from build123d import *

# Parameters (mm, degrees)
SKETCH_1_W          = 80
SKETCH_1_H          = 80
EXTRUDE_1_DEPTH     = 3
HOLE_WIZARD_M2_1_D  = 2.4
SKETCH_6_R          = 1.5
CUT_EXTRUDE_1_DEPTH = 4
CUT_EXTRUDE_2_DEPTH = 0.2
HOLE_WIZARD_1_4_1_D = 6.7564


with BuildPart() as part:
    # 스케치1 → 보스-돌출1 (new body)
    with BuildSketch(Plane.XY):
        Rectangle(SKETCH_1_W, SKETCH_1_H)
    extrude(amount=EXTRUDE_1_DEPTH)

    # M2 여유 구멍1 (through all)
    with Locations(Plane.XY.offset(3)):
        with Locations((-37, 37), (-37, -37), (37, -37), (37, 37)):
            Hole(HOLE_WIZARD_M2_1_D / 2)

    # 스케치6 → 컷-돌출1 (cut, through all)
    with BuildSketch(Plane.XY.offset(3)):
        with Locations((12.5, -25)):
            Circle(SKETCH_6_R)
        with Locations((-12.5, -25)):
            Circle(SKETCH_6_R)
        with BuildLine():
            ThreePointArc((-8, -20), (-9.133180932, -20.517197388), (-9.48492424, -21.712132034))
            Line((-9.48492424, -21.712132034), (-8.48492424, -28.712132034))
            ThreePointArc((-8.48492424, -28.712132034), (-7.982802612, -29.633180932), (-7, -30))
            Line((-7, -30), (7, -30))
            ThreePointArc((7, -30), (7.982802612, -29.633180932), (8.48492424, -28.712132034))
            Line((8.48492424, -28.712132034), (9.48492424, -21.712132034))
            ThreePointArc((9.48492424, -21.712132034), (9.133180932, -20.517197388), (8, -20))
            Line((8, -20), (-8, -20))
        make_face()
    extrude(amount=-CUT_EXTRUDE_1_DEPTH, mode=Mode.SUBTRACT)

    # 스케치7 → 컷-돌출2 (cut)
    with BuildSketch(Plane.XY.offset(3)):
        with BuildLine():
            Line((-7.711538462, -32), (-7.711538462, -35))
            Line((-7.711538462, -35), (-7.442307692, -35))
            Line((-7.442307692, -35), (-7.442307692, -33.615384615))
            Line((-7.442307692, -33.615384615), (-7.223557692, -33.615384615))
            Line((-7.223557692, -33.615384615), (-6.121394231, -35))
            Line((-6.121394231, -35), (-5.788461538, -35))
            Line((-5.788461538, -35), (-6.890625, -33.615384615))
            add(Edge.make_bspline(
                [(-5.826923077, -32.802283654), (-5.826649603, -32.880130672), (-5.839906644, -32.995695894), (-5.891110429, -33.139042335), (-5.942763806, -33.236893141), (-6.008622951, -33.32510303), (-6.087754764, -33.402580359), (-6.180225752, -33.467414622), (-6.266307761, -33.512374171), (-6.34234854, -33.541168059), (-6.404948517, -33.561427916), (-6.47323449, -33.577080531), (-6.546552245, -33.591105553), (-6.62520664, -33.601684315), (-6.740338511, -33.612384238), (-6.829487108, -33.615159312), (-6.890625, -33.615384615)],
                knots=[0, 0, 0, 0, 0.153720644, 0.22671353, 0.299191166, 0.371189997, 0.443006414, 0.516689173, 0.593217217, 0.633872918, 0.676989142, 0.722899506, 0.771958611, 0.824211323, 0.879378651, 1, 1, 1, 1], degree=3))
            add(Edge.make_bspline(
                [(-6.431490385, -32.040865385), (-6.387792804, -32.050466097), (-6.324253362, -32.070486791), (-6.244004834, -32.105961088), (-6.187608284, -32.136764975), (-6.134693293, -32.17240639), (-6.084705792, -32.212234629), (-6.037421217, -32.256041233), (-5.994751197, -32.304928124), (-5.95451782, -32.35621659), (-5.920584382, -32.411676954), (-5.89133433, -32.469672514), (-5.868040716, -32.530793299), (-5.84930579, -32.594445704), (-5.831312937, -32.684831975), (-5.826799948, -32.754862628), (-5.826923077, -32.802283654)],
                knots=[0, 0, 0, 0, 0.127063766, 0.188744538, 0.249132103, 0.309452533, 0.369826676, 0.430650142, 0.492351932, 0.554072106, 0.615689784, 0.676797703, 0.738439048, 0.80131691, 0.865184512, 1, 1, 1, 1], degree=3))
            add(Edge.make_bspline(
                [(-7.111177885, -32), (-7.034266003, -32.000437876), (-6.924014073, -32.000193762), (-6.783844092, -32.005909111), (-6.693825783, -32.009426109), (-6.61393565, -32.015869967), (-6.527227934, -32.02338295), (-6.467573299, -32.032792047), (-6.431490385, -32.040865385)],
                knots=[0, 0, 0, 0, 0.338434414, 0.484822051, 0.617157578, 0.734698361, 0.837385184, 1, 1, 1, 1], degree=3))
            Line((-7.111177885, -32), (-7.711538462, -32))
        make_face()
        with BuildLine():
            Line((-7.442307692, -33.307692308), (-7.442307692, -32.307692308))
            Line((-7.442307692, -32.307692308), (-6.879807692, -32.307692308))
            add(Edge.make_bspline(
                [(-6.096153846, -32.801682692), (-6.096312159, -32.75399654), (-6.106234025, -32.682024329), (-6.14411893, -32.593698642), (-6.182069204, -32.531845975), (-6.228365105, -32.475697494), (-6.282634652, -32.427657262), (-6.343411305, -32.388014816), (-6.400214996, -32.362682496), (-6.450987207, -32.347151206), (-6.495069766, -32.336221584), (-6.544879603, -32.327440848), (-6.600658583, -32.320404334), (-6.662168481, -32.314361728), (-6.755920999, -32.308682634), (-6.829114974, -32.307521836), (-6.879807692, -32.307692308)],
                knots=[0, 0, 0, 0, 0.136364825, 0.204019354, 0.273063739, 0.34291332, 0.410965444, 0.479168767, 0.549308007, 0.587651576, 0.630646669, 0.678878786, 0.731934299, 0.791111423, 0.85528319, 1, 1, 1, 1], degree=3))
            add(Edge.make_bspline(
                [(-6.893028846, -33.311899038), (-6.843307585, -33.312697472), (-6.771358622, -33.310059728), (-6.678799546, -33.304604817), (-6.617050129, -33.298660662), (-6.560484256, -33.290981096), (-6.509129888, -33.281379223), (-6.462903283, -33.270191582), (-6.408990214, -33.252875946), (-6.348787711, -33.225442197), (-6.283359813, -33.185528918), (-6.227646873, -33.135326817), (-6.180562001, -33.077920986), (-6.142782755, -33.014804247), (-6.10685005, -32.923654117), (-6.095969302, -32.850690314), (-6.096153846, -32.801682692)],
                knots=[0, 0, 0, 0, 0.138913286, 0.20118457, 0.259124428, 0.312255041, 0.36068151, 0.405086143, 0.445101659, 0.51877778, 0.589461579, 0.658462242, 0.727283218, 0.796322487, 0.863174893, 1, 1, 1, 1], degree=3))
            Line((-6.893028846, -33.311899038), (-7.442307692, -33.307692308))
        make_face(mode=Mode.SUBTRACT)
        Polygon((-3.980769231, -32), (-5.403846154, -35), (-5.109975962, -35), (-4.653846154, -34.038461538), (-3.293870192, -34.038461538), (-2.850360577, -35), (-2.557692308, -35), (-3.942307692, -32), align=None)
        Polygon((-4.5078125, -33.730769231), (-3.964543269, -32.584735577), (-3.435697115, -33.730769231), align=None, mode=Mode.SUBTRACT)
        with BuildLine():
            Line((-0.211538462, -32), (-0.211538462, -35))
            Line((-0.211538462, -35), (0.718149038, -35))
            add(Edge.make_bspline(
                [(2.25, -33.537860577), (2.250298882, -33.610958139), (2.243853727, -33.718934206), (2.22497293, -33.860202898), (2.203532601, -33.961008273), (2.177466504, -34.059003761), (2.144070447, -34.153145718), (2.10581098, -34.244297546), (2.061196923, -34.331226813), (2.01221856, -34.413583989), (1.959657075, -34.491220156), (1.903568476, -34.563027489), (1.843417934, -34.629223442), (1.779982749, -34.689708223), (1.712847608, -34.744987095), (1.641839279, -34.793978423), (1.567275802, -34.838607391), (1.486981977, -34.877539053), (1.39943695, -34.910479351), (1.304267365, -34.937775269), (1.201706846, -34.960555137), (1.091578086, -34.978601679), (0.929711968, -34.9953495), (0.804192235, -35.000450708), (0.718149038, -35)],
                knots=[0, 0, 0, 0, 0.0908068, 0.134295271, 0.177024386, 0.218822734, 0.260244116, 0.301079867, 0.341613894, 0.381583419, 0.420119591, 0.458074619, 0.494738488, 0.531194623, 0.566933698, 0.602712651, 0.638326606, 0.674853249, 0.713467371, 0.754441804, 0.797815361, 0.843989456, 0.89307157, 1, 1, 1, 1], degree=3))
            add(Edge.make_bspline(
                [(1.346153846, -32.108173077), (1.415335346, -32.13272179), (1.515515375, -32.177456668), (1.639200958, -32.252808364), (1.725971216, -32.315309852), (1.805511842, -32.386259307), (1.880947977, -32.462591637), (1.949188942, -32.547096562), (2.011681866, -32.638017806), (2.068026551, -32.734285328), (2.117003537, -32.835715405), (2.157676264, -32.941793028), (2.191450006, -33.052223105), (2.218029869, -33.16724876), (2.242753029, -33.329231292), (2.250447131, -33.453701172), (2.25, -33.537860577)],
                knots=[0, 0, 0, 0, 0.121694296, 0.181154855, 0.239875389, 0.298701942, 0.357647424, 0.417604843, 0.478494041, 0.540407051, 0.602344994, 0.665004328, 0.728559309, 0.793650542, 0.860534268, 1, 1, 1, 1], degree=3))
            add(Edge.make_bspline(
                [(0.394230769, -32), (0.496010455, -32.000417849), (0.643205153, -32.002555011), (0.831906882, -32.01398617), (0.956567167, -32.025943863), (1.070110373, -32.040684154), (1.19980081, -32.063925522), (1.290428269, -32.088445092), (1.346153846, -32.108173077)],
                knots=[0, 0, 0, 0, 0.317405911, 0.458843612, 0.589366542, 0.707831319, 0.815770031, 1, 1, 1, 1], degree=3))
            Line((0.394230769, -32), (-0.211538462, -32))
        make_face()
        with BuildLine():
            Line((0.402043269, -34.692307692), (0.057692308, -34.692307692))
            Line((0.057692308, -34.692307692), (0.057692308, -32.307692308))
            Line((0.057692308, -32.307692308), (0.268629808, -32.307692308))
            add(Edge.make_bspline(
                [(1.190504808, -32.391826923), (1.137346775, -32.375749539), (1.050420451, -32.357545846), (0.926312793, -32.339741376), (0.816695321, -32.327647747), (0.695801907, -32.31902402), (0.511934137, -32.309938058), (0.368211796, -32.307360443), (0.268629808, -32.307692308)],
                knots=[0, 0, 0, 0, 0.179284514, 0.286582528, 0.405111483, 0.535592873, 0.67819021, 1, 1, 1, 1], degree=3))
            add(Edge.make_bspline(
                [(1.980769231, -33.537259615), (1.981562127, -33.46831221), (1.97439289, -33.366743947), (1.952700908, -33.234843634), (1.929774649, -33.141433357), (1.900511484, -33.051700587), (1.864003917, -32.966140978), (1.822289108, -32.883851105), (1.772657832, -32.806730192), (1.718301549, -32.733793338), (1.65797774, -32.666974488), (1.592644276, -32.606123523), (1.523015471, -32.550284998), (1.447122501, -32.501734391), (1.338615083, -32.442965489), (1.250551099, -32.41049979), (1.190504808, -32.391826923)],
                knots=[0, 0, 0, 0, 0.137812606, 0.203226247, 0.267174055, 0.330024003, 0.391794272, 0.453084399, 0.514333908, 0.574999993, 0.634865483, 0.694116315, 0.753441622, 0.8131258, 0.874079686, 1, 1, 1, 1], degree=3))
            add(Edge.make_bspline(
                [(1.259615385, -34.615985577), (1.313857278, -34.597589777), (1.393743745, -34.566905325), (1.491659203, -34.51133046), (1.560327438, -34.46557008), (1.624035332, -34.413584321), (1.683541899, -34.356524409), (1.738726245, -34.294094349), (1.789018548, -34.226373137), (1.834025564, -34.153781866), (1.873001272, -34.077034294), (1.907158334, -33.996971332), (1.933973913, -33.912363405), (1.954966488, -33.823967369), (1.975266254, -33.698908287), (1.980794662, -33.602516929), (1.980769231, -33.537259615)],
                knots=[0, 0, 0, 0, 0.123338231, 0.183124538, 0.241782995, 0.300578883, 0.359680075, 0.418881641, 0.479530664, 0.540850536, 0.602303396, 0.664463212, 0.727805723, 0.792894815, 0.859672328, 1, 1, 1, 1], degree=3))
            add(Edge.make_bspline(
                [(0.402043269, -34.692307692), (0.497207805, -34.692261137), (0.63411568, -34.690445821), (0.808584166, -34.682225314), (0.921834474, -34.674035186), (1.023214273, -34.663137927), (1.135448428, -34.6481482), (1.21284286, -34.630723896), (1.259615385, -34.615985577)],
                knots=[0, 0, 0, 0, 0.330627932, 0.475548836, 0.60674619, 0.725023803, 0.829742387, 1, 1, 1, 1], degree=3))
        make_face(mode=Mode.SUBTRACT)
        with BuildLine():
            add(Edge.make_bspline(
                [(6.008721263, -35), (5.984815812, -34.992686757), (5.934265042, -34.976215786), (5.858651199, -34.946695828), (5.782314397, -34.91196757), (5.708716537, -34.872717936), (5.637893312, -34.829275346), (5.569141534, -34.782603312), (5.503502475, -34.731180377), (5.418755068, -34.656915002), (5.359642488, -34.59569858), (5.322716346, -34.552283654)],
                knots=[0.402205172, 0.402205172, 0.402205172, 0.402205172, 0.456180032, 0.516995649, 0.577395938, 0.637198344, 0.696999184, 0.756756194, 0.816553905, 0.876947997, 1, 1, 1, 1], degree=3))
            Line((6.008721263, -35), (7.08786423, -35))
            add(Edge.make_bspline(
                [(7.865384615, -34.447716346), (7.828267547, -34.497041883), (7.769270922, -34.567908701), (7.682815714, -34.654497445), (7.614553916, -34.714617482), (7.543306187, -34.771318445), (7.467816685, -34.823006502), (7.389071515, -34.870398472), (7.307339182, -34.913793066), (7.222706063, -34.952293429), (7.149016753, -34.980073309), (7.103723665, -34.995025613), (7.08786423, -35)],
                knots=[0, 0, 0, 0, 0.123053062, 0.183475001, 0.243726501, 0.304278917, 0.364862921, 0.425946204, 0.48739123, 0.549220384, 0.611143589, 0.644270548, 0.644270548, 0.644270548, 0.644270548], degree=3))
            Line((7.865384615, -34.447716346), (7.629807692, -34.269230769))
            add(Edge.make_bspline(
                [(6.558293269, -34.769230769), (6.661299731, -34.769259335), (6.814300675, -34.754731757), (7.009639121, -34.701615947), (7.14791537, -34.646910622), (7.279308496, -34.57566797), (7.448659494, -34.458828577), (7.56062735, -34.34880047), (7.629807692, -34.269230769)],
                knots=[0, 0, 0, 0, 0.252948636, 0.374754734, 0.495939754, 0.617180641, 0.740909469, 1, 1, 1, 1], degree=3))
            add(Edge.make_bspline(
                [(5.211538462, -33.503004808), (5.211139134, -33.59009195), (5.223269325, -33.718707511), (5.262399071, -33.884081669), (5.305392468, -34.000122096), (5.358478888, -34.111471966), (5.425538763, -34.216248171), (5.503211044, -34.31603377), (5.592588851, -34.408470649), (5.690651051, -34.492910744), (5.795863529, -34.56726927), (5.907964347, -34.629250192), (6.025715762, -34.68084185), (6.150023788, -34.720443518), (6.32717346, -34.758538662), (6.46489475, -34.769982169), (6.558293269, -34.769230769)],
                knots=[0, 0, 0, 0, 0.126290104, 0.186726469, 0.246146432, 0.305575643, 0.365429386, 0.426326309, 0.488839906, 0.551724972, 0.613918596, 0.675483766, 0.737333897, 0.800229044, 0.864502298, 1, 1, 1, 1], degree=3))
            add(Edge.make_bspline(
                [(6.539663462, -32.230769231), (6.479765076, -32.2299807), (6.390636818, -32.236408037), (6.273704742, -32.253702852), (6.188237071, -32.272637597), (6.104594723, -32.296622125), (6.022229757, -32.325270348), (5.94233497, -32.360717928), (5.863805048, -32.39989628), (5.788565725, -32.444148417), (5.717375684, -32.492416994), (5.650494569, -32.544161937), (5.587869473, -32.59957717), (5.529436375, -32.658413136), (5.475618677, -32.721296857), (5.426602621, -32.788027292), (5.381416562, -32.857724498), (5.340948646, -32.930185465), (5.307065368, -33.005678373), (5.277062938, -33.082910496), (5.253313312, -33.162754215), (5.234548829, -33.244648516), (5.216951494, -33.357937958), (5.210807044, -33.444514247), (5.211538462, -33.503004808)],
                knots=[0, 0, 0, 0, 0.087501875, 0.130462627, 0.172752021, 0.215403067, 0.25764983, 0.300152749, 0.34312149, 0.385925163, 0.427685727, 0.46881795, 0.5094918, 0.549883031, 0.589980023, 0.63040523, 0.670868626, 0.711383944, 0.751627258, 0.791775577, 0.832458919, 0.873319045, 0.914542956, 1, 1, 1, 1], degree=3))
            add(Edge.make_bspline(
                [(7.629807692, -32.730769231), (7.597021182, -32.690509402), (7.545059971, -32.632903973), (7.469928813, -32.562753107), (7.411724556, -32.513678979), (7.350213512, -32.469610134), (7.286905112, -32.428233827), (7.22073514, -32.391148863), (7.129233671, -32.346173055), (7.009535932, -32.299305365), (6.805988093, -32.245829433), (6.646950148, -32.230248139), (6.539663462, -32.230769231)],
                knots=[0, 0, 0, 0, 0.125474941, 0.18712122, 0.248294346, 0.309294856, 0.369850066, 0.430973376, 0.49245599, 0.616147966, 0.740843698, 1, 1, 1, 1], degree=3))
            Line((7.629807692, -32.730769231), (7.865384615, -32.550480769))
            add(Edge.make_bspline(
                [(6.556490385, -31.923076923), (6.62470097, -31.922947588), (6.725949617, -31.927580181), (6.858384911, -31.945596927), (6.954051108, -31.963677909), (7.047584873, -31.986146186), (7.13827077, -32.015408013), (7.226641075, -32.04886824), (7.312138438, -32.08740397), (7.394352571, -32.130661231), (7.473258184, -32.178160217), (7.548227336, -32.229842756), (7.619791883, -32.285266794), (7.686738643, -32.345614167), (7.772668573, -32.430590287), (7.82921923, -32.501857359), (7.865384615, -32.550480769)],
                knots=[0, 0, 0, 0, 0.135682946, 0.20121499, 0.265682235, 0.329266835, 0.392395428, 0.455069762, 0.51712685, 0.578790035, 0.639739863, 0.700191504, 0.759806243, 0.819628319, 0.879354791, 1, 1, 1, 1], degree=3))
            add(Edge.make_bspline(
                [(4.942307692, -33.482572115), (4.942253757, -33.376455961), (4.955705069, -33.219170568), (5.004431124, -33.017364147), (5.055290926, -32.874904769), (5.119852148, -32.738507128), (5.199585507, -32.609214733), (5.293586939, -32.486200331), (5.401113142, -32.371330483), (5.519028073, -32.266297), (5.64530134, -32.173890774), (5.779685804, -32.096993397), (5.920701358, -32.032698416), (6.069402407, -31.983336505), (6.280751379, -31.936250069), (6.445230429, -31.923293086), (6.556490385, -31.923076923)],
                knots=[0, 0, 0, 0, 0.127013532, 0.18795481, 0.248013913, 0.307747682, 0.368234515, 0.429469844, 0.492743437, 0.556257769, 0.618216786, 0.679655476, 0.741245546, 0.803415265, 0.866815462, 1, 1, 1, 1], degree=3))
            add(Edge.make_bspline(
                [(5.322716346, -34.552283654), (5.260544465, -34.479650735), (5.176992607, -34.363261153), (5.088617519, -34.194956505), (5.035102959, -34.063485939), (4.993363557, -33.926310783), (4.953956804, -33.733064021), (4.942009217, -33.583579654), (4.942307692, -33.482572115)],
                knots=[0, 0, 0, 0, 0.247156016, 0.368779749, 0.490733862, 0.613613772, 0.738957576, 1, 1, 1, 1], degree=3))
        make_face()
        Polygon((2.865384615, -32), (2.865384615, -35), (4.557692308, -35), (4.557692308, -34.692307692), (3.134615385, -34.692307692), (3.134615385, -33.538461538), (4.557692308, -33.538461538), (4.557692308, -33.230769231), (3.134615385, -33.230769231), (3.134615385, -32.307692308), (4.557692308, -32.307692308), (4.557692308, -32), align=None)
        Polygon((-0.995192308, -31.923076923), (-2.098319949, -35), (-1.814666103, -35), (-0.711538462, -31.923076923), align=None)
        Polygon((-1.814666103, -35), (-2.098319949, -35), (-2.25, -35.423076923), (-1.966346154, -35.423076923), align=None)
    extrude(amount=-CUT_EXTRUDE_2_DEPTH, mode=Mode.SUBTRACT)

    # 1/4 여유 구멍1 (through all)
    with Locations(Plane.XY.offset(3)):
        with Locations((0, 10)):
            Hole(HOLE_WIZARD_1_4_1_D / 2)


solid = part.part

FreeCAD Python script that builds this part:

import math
import FreeCAD as App
import Part
import Sketcher

V = App.Vector
Q = App.Units.Quantity

doc = App.newDocument("Part")
body = doc.addObject("PartDesign::Body", "Body")

sketch1 = body.newObject("Sketcher::SketchObject", "Sketch")
sketch1.AttachmentSupport = (doc.getObject("XY_Plane"), [""])
sketch1.MapMode = "FlatFace"
sketch1.addGeometry(Part.LineSegment(V(-40, 40, 0), V(-40, -40, 0)), False)
sketch1.addGeometry(Part.LineSegment(V(-40, -40, 0), V(40, -40, 0)), False)
sketch1.addGeometry(Part.LineSegment(V(40, -40, 0), V(40, 40, 0)), False)
sketch1.addGeometry(Part.LineSegment(V(40, 40, 0), V(-40, 40, 0)), False)
sketch1.addConstraint(Sketcher.Constraint("Coincident", 0, 2, 1, 1))
sketch1.addConstraint(Sketcher.Constraint("Coincident", 1, 2, 2, 1))
sketch1.addConstraint(Sketcher.Constraint("Coincident", 2, 2, 3, 1))
sketch1.addConstraint(Sketcher.Constraint("Coincident", 3, 2, 0, 1))
sketch1.addConstraint(Sketcher.Constraint("Vertical", 0))
sketch1.addConstraint(Sketcher.Constraint("Horizontal", 1))
sketch1.addConstraint(Sketcher.Constraint("Vertical", 2))
sketch1.addConstraint(Sketcher.Constraint("Horizontal", 3))
sketch1.addConstraint(Sketcher.Constraint("Symmetric", 0, 2, 2, 2, -1, 1))
sketch1.addConstraint(Sketcher.Constraint("Equal", 3, 0))
sketch1.addConstraint(Sketcher.Constraint("DistanceX", 1, 1, 1, 2, Q("80 mm")))
pad1 = body.newObject("PartDesign::Pad", "Pad")
pad1.Profile = sketch1
pad1.Length = 3

sketch2 = body.newObject("Sketcher::SketchObject", "Sketch001")
sketch2.AttachmentSupport = (doc.getObject("XY_Plane"), [""])
sketch2.MapMode = "FlatFace"
sketch2.AttachmentOffset = App.Placement(V(0, 0, 3), App.Rotation())
sketch2.addGeometry(Part.Circle(V(-37, 37, 0), V(0, 0, 1), 1.2), False)
sketch2.addGeometry(Part.Circle(V(-37, -37, 0), V(0, 0, 1), 1.2), False)
sketch2.addGeometry(Part.Circle(V(37, -37, 0), V(0, 0, 1), 1.2), False)
sketch2.addGeometry(Part.Circle(V(37, 37, 0), V(0, 0, 1), 1.2), False)
sketch2.addConstraint(Sketcher.Constraint("Equal", 0, 1))
sketch2.addConstraint(Sketcher.Constraint("Equal", 1, 2))
sketch2.addConstraint(Sketcher.Constraint("Equal", 2, 3))
sketch2.addConstraint(Sketcher.Constraint("Symmetric", 0, 3, 2, 3, -1, 1))
sketch2.addConstraint(Sketcher.Constraint("Symmetric", 1, 3, 3, 3, -1, 1))
sketch2.addConstraint(Sketcher.Constraint("Symmetric", 1, 3, 2, 3, -2))
sketch2.addConstraint(Sketcher.Constraint("Diameter", 0, Q("2.4 mm")))
sketch2.addConstraint(Sketcher.Constraint("DistanceX", 0, 3, -1, 1, Q("37 mm")))
sketch2.addConstraint(Sketcher.Constraint("DistanceY", -1, 1, 0, 3, Q("37 mm")))
doc.recompute()
hole = body.newObject("PartDesign::Hole", "Hole")
hole.Profile = sketch2
hole.ThreadType = "None"
hole.Diameter = 2.4
hole.DepthType = "ThroughAll"

sketch3 = body.newObject("Sketcher::SketchObject", "Sketch002")
sketch3.AttachmentSupport = (doc.getObject("XY_Plane"), [""])
sketch3.MapMode = "FlatFace"
sketch3.AttachmentOffset = App.Placement(V(0, 0, 3), App.Rotation())
sketch3.addGeometry(Part.Circle(V(12.5, -25, 0), V(0, 0, 1), 1.5), False)
sketch3.addGeometry(Part.Circle(V(-12.5, -25, 0), V(0, 0, 1), 1.5), False)
sketch3.addGeometry(Part.ArcOfCircle(Part.Circle(V(-8, -21.5, 0), V(0, 0, 1), 1.5), math.radians(90), math.radians(188)), False)
sketch3.addGeometry(Part.LineSegment(V(-9.5, -21.7, 0), V(-8.5, -28.7, 0)), False)
sketch3.addGeometry(Part.ArcOfCircle(Part.Circle(V(-7, -28.5, 0), V(0, 0, 1), 1.5), math.radians(-172), math.radians(-90)), False)
sketch3.addGeometry(Part.LineSegment(V(-7, -30, 0), V(7, -30, 0)), False)
sketch3.addGeometry(Part.ArcOfCircle(Part.Circle(V(7, -28.5, 0), V(0, 0, 1), 1.5), math.radians(-90), math.radians(-8)), False)
sketch3.addGeometry(Part.LineSegment(V(8.5, -28.7, 0), V(9.5, -21.7, 0)), False)
sketch3.addGeometry(Part.ArcOfCircle(Part.Circle(V(8, -21.5, 0), V(0, 0, 1), 1.5), math.radians(-8), math.radians(90)), False)
sketch3.addGeometry(Part.LineSegment(V(8, -20, 0), V(-8, -20, 0)), False)
sketch3.addConstraint(Sketcher.Constraint("Tangent", 2, 2, 3, 1))
sketch3.addConstraint(Sketcher.Constraint("Tangent", 3, 2, 4, 1))
sketch3.addConstraint(Sketcher.Constraint("Tangent", 4, 2, 5, 1))
sketch3.addConstraint(Sketcher.Constraint("Tangent", 5, 2, 6, 1))
sketch3.addConstraint(Sketcher.Constraint("Tangent", 6, 2, 7, 1))
sketch3.addConstraint(Sketcher.Constraint("Tangent", 7, 2, 8, 1))
sketch3.addConstraint(Sketcher.Constraint("Tangent", 8, 2, 9, 1))
sketch3.addConstraint(Sketcher.Constraint("Tangent", 9, 2, 2, 1))
sketch3.addConstraint(Sketcher.Constraint("Horizontal", 5))
sketch3.addConstraint(Sketcher.Constraint("Horizontal", 9))
sketch3.addConstraint(Sketcher.Constraint("Equal", 0, 1))
sketch3.addConstraint(Sketcher.Constraint("Equal", 1, 2))
sketch3.addConstraint(Sketcher.Constraint("Equal", 2, 4))
sketch3.addConstraint(Sketcher.Constraint("Equal", 4, 6))
sketch3.addConstraint(Sketcher.Constraint("Equal", 6, 8))
sketch3.addConstraint(Sketcher.Constraint("Symmetric", 0, 3, 1, 3, -2))
sketch3.addConstraint(Sketcher.Constraint("Symmetric", 3, 2, 6, 2, -2))
sketch3.addConstraint(Sketcher.Constraint("Diameter", 0, Q("3 mm")))
sketch3.addConstraint(Sketcher.Constraint("DistanceX", 5, 1, 5, 2, Q("14 mm")))
sketch3.addConstraint(Sketcher.Constraint("DistanceX", 9, 2, 9, 1, Q("16 mm")))
sketch3.addConstraint(Sketcher.Constraint("DistanceY", 0, 3, -1, 1, Q("25 mm")))
sketch3.addConstraint(Sketcher.Constraint("DistanceY", 4, 2, -1, 1, Q("30 mm")))
sketch3.addConstraint(Sketcher.Constraint("DistanceY", 8, 2, -1, 1, Q("20 mm")))
sketch3.addConstraint(Sketcher.Constraint("DistanceX", 1, 3, 0, 3, Q("25 mm")))
pocket1 = body.newObject("PartDesign::Pocket", "Pocket")
pocket1.Profile = sketch3
pocket1.Type = "ThroughAll"

sketch4 = body.newObject("Sketcher::SketchObject", "Sketch003")
sketch4.AttachmentSupport = (doc.getObject("XY_Plane"), [""])
sketch4.MapMode = "FlatFace"
sketch4.AttachmentOffset = App.Placement(V(0, 0, 3), App.Rotation())
sketch4.addGeometry(Part.LineSegment(V(-7.711538, -32, 0), V(-7.711538, -35, 0)), False)
sketch4.addGeometry(Part.LineSegment(V(-7.711538, -35, 0), V(-7.442308, -35, 0)), False)
sketch4.addGeometry(Part.LineSegment(V(-7.442308, -35, 0), V(-7.442308, -33.615385, 0)), False)
sketch4.addGeometry(Part.LineSegment(V(-7.442308, -33.615385, 0), V(-7.223558, -33.615385, 0)), False)
sketch4.addGeometry(Part.LineSegment(V(-7.223558, -33.615385, 0), V(-6.121394, -35, 0)), False)
sketch4.addGeometry(Part.LineSegment(V(-6.121394, -35, 0), V(-5.788462, -35, 0)), False)
sketch4.addGeometry(Part.LineSegment(V(-5.788462, -35, 0), V(-6.890625, -33.615385, 0)), False)
sketch4.addGeometry(Part.BSplineCurve([V(-5.826923, -32.802284, 0), V(-5.82665, -32.880131, 0), V(-5.839907, -32.995696, 0), V(-5.89111, -33.139042, 0), V(-5.942764, -33.236893, 0), V(-6.008623, -33.325103, 0), V(-6.087755, -33.40258, 0), V(-6.180226, -33.467415, 0), V(-6.266308, -33.512374, 0), V(-6.342349, -33.541168, 0), V(-6.404949, -33.561428, 0), V(-6.473234, -33.577081, 0), V(-6.546552, -33.591106, 0), V(-6.625207, -33.601684, 0), V(-6.740339, -33.612384, 0), V(-6.829487, -33.615159, 0), V(-6.890625, -33.615385, 0)], [4, 1, 1, 1, 1, 1, 1, 1, 1, 1, 1, 1, 1, 1, 4], [0, 0.153720644, 0.22671353, 0.299191166, 0.371189997, 0.443006414, 0.516689173, 0.593217217, 0.633872918, 0.676989142, 0.722899506, 0.771958611, 0.824211323, 0.879378651, 1], False, 3, [1, 1, 1, 1, 1, 1, 1, 1, 1, 1, 1, 1, 1, 1, 1, 1, 1], False), False)
sketch4.addGeometry(Part.BSplineCurve([V(-6.43149, -32.040865, 0), V(-6.387793, -32.050466, 0), V(-6.324253, -32.070487, 0), V(-6.244005, -32.105961, 0), V(-6.187608, -32.136765, 0), V(-6.134693, -32.172406, 0), V(-6.084706, -32.212235, 0), V(-6.037421, -32.256041, 0), V(-5.994751, -32.304928, 0), V(-5.954518, -32.356217, 0), V(-5.920584, -32.411677, 0), V(-5.891334, -32.469673, 0), V(-5.868041, -32.530793, 0), V(-5.849306, -32.594446, 0), V(-5.831313, -32.684832, 0), V(-5.8268, -32.754863, 0), V(-5.826923, -32.802284, 0)], [4, 1, 1, 1, 1, 1, 1, 1, 1, 1, 1, 1, 1, 1, 4], [0, 0.127063766, 0.188744538, 0.249132103, 0.309452533, 0.369826676, 0.430650142, 0.492351932, 0.554072106, 0.615689784, 0.676797703, 0.738439048, 0.80131691, 0.865184512, 1], False, 3, [1, 1, 1, 1, 1, 1, 1, 1, 1, 1, 1, 1, 1, 1, 1, 1, 1], False), False)
sketch4.addGeometry(Part.BSplineCurve([V(-7.111178, -32, 0), V(-7.034266, -32.000438, 0), V(-6.924014, -32.000194, 0), V(-6.783844, -32.005909, 0), V(-6.693826, -32.009426, 0), V(-6.613936, -32.01587, 0), V(-6.527228, -32.023383, 0), V(-6.467573, -32.032792, 0), V(-6.43149, -32.040865, 0)], [4, 1, 1, 1, 1, 1, 4], [0, 0.338434414, 0.484822051, 0.617157578, 0.734698361, 0.837385184, 1], False, 3, [1, 1, 1, 1, 1, 1, 1, 1, 1], False), False)
sketch4.addGeometry(Part.LineSegment(V(-7.111178, -32, 0), V(-7.711538, -32, 0)), False)
sketch4.addGeometry(Part.LineSegment(V(-6.893029, -33.311899, 0), V(-7.442308, -33.307692, 0)), False)
sketch4.addGeometry(Part.LineSegment(V(-7.442308, -33.307692, 0), V(-7.442308, -32.307692, 0)), False)
sketch4.addGeometry(Part.LineSegment(V(-7.442308, -32.307692, 0), V(-6.879808, -32.307692, 0)), False)
sketch4.addGeometry(Part.BSplineCurve([V(-6.096154, -32.801683, 0), V(-6.096312, -32.753997, 0), V(-6.106234, -32.682024, 0), V(-6.144119, -32.593699, 0), V(-6.182069, -32.531846, 0), V(-6.228365, -32.475697, 0), V(-6.282635, -32.427657, 0), V(-6.343411, -32.388015, 0), V(-6.400215, -32.362682, 0), V(-6.450987, -32.347151, 0), V(-6.49507, -32.336222, 0), V(-6.54488, -32.327441, 0), V(-6.600659, -32.320404, 0), V(-6.662168, -32.314362, 0), V(-6.755921, -32.308683, 0), V(-6.829115, -32.307522, 0), V(-6.879808, -32.307692, 0)], [4, 1, 1, 1, 1, 1, 1, 1, 1, 1, 1, 1, 1, 1, 4], [0, 0.136364825, 0.204019354, 0.273063739, 0.34291332, 0.410965444, 0.479168767, 0.549308007, 0.587651576, 0.630646669, 0.678878786, 0.731934299, 0.791111423, 0.85528319, 1], False, 3, [1, 1, 1, 1, 1, 1, 1, 1, 1, 1, 1, 1, 1, 1, 1, 1, 1], False), False)
sketch4.addGeometry(Part.BSplineCurve([V(-6.893029, -33.311899, 0), V(-6.843308, -33.312697, 0), V(-6.771359, -33.31006, 0), V(-6.6788, -33.304605, 0), V(-6.61705, -33.298661, 0), V(-6.560484, -33.290981, 0), V(-6.50913, -33.281379, 0), V(-6.462903, -33.270192, 0), V(-6.40899, -33.252876, 0), V(-6.348788, -33.225442, 0), V(-6.28336, -33.185529, 0), V(-6.227647, -33.135327, 0), V(-6.180562, -33.077921, 0), V(-6.142783, -33.014804, 0), V(-6.10685, -32.923654, 0), V(-6.095969, -32.85069, 0), V(-6.096154, -32.801683, 0)], [4, 1, 1, 1, 1, 1, 1, 1, 1, 1, 1, 1, 1, 1, 4], [0, 0.138913286, 0.20118457, 0.259124428, 0.312255041, 0.36068151, 0.405086143, 0.445101659, 0.51877778, 0.589461579, 0.658462242, 0.727283218, 0.796322487, 0.863174893, 1], False, 3, [1, 1, 1, 1, 1, 1, 1, 1, 1, 1, 1, 1, 1, 1, 1, 1, 1], False), False)
sketch4.addGeometry(Part.LineSegment(V(-3.980769, -32, 0), V(-5.403846, -35, 0)), False)
sketch4.addGeometry(Part.LineSegment(V(-5.403846, -35, 0), V(-5.109976, -35, 0)), False)
sketch4.addGeometry(Part.LineSegment(V(-5.109976, -35, 0), V(-4.653846, -34.038462, 0)), False)
sketch4.addGeometry(Part.LineSegment(V(-4.653846, -34.038462, 0), V(-3.29387, -34.038462, 0)), False)
sketch4.addGeometry(Part.LineSegment(V(-3.29387, -34.038462, 0), V(-2.850361, -35, 0)), False)
sketch4.addGeometry(Part.LineSegment(V(-2.850361, -35, 0), V(-2.557692, -35, 0)), False)
sketch4.addGeometry(Part.LineSegment(V(-2.557692, -35, 0), V(-3.942308, -32, 0)), False)
sketch4.addGeometry(Part.LineSegment(V(-3.942308, -32, 0), V(-3.980769, -32, 0)), False)
sketch4.addGeometry(Part.LineSegment(V(-3.435697, -33.730769, 0), V(-4.507812, -33.730769, 0)), False)
sketch4.addGeometry(Part.LineSegment(V(-4.507812, -33.730769, 0), V(-3.964543, -32.584736, 0)), False)
sketch4.addGeometry(Part.LineSegment(V(-3.964543, -32.584736, 0), V(-3.435697, -33.730769, 0)), False)
sketch4.addGeometry(Part.LineSegment(V(-0.211538, -32, 0), V(-0.211538, -35, 0)), False)
sketch4.addGeometry(Part.LineSegment(V(-0.211538, -35, 0), V(0.718149, -35, 0)), False)
sketch4.addGeometry(Part.BSplineCurve([V(2.25, -33.537861, 0), V(2.250299, -33.610958, 0), V(2.243854, -33.718934, 0), V(2.224973, -33.860203, 0), V(2.203533, -33.961008, 0), V(2.177467, -34.059004, 0), V(2.14407, -34.153146, 0), V(2.105811, -34.244298, 0), V(2.061197, -34.331227, 0), V(2.012219, -34.413584, 0), V(1.959657, -34.49122, 0), V(1.903568, -34.563027, 0), V(1.843418, -34.629223, 0), V(1.779983, -34.689708, 0), V(1.712848, -34.744987, 0), V(1.641839, -34.793978, 0), V(1.567276, -34.838607, 0), V(1.486982, -34.877539, 0), V(1.399437, -34.910479, 0), V(1.304267, -34.937775, 0), V(1.201707, -34.960555, 0), V(1.091578, -34.978602, 0), V(0.929712, -34.99535, 0), V(0.804192, -35.000451, 0), V(0.718149, -35, 0)], [4, 1, 1, 1, 1, 1, 1, 1, 1, 1, 1, 1, 1, 1, 1, 1, 1, 1, 1, 1, 1, 1, 4], [0, 0.0908068, 0.134295271, 0.177024386, 0.218822734, 0.260244116, 0.301079867, 0.341613894, 0.381583419, 0.420119591, 0.458074619, 0.494738488, 0.531194623, 0.566933698, 0.602712651, 0.638326606, 0.674853249, 0.713467371, 0.754441804, 0.797815361, 0.843989456, 0.89307157, 1], False, 3, [1, 1, 1, 1, 1, 1, 1, 1, 1, 1, 1, 1, 1, 1, 1, 1, 1, 1, 1, 1, 1, 1, 1, 1, 1], False), False)
sketch4.addGeometry(Part.BSplineCurve([V(1.346154, -32.108173, 0), V(1.415335, -32.132722, 0), V(1.515515, -32.177457, 0), V(1.639201, -32.252808, 0), V(1.725971, -32.31531, 0), V(1.805512, -32.386259, 0), V(1.880948, -32.462592, 0), V(1.949189, -32.547097, 0), V(2.011682, -32.638018, 0), V(2.068027, -32.734285, 0), V(2.117004, -32.835715, 0), V(2.157676, -32.941793, 0), V(2.19145, -33.052223, 0), V(2.21803, -33.167249, 0), V(2.242753, -33.329231, 0), V(2.250447, -33.453701, 0), V(2.25, -33.537861, 0)], [4, 1, 1, 1, 1, 1, 1, 1, 1, 1, 1, 1, 1, 1, 4], [0, 0.121694296, 0.181154855, 0.239875389, 0.298701942, 0.357647424, 0.417604843, 0.478494041, 0.540407051, 0.602344994, 0.665004328, 0.728559309, 0.793650542, 0.860534268, 1], False, 3, [1, 1, 1, 1, 1, 1, 1, 1, 1, 1, 1, 1, 1, 1, 1, 1, 1], False), False)
sketch4.addGeometry(Part.BSplineCurve([V(0.394231, -32, 0), V(0.49601, -32.000418, 0), V(0.643205, -32.002555, 0), V(0.831907, -32.013986, 0), V(0.956567, -32.025944, 0), V(1.07011, -32.040684, 0), V(1.199801, -32.063926, 0), V(1.290428, -32.088445, 0), V(1.346154, -32.108173, 0)], [4, 1, 1, 1, 1, 1, 4], [0, 0.317405911, 0.458843612, 0.589366542, 0.707831319, 0.815770031, 1], False, 3, [1, 1, 1, 1, 1, 1, 1, 1, 1], False), False)
sketch4.addGeometry(Part.LineSegment(V(0.394231, -32, 0), V(-0.211538, -32, 0)), False)
sketch4.addGeometry(Part.BSplineCurve([V(0.402043, -34.692308, 0), V(0.497208, -34.692261, 0), V(0.634116, -34.690446, 0), V(0.808584, -34.682225, 0), V(0.921834, -34.674035, 0), V(1.023214, -34.663138, 0), V(1.135448, -34.648148, 0), V(1.212843, -34.630724, 0), V(1.259615, -34.615986, 0)], [4, 1, 1, 1, 1, 1, 4], [0, 0.330627932, 0.475548836, 0.60674619, 0.725023803, 0.829742387, 1], False, 3, [1, 1, 1, 1, 1, 1, 1, 1, 1], False), False)
sketch4.addGeometry(Part.LineSegment(V(0.402043, -34.692308, 0), V(0.057692, -34.692308, 0)), False)
sketch4.addGeometry(Part.LineSegment(V(0.057692, -34.692308, 0), V(0.057692, -32.307692, 0)), False)
sketch4.addGeometry(Part.LineSegment(V(0.057692, -32.307692, 0), V(0.26863, -32.307692, 0)), False)
sketch4.addGeometry(Part.BSplineCurve([V(1.190505, -32.391827, 0), V(1.137347, -32.37575, 0), V(1.05042, -32.357546, 0), V(0.926313, -32.339741, 0), V(0.816695, -32.327648, 0), V(0.695802, -32.319024, 0), V(0.511934, -32.309938, 0), V(0.368212, -32.30736, 0), V(0.26863, -32.307692, 0)], [4, 1, 1, 1, 1, 1, 4], [0, 0.179284514, 0.286582528, 0.405111483, 0.535592873, 0.67819021, 1], False, 3, [1, 1, 1, 1, 1, 1, 1, 1, 1], False), False)
sketch4.addGeometry(Part.BSplineCurve([V(1.980769, -33.53726, 0), V(1.981562, -33.468312, 0), V(1.974393, -33.366744, 0), V(1.952701, -33.234844, 0), V(1.929775, -33.141433, 0), V(1.900511, -33.051701, 0), V(1.864004, -32.966141, 0), V(1.822289, -32.883851, 0), V(1.772658, -32.80673, 0), V(1.718302, -32.733793, 0), V(1.657978, -32.666974, 0), V(1.592644, -32.606124, 0), V(1.523015, -32.550285, 0), V(1.447123, -32.501734, 0), V(1.338615, -32.442965, 0), V(1.250551, -32.4105, 0), V(1.190505, -32.391827, 0)], [4, 1, 1, 1, 1, 1, 1, 1, 1, 1, 1, 1, 1, 1, 4], [0, 0.137812606, 0.203226247, 0.267174055, 0.330024003, 0.391794272, 0.453084399, 0.514333908, 0.574999993, 0.634865483, 0.694116315, 0.753441622, 0.8131258, 0.874079686, 1], False, 3, [1, 1, 1, 1, 1, 1, 1, 1, 1, 1, 1, 1, 1, 1, 1, 1, 1], False), False)
sketch4.addGeometry(Part.BSplineCurve([V(1.259615, -34.615986, 0), V(1.313857, -34.59759, 0), V(1.393744, -34.566905, 0), V(1.491659, -34.51133, 0), V(1.560327, -34.46557, 0), V(1.624035, -34.413584, 0), V(1.683542, -34.356524, 0), V(1.738726, -34.294094, 0), V(1.789019, -34.226373, 0), V(1.834026, -34.153782, 0), V(1.873001, -34.077034, 0), V(1.907158, -33.996971, 0), V(1.933974, -33.912363, 0), V(1.954966, -33.823967, 0), V(1.975266, -33.698908, 0), V(1.980795, -33.602517, 0), V(1.980769, -33.53726, 0)], [4, 1, 1, 1, 1, 1, 1, 1, 1, 1, 1, 1, 1, 1, 4], [0, 0.123338231, 0.183124538, 0.241782995, 0.300578883, 0.359680075, 0.418881641, 0.479530664, 0.540850536, 0.602303396, 0.664463212, 0.727805723, 0.792894815, 0.859672328, 1], False, 3, [1, 1, 1, 1, 1, 1, 1, 1, 1, 1, 1, 1, 1, 1, 1, 1, 1], False), False)
sketch4.addGeometry(Part.BSplineCurve([V(6.008721, -35, 0), V(5.984816, -34.992687, 0), V(5.934265, -34.976216, 0), V(5.858651, -34.946696, 0), V(5.782314, -34.911968, 0), V(5.708717, -34.872718, 0), V(5.637893, -34.829275, 0), V(5.569142, -34.782603, 0), V(5.503502, -34.73118, 0), V(5.418755, -34.656915, 0), V(5.359642, -34.595699, 0), V(5.322716, -34.552284, 0)], [4, 1, 1, 1, 1, 1, 1, 1, 1, 4], [0.402205172, 0.456180032, 0.516995649, 0.577395938, 0.637198344, 0.696999184, 0.756756194, 0.816553905, 0.876947997, 1], False, 3, [1, 1, 1, 1, 1, 1, 1, 1, 1, 1, 1, 1], False), False)
sketch4.addGeometry(Part.LineSegment(V(6.008721, -35, 0), V(7.087864, -35, 0)), False)
sketch4.addGeometry(Part.BSplineCurve([V(7.865385, -34.447716, 0), V(7.828268, -34.497042, 0), V(7.769271, -34.567909, 0), V(7.682816, -34.654497, 0), V(7.614554, -34.714617, 0), V(7.543306, -34.771318, 0), V(7.467817, -34.823007, 0), V(7.389072, -34.870398, 0), V(7.307339, -34.913793, 0), V(7.222706, -34.952293, 0), V(7.149017, -34.980073, 0), V(7.103724, -34.995026, 0), V(7.087864, -35, 0)], [4, 1, 1, 1, 1, 1, 1, 1, 1, 1, 4], [0, 0.123053062, 0.183475001, 0.243726501, 0.304278917, 0.364862921, 0.425946204, 0.48739123, 0.549220384, 0.611143589, 0.644270548], False, 3, [1, 1, 1, 1, 1, 1, 1, 1, 1, 1, 1, 1, 1], False), False)
sketch4.addGeometry(Part.LineSegment(V(7.865385, -34.447716, 0), V(7.629808, -34.269231, 0)), False)
sketch4.addGeometry(Part.BSplineCurve([V(6.558293, -34.769231, 0), V(6.6613, -34.769259, 0), V(6.814301, -34.754732, 0), V(7.009639, -34.701616, 0), V(7.147915, -34.646911, 0), V(7.279308, -34.575668, 0), V(7.448659, -34.458829, 0), V(7.560627, -34.3488, 0), V(7.629808, -34.269231, 0)], [4, 1, 1, 1, 1, 1, 4], [0, 0.252948636, 0.374754734, 0.495939754, 0.617180641, 0.740909469, 1], False, 3, [1, 1, 1, 1, 1, 1, 1, 1, 1], False), False)
sketch4.addGeometry(Part.BSplineCurve([V(5.211538, -33.503005, 0), V(5.211139, -33.590092, 0), V(5.223269, -33.718708, 0), V(5.262399, -33.884082, 0), V(5.305392, -34.000122, 0), V(5.358479, -34.111472, 0), V(5.425539, -34.216248, 0), V(5.503211, -34.316034, 0), V(5.592589, -34.408471, 0), V(5.690651, -34.492911, 0), V(5.795864, -34.567269, 0), V(5.907964, -34.62925, 0), V(6.025716, -34.680842, 0), V(6.150024, -34.720444, 0), V(6.327173, -34.758539, 0), V(6.464895, -34.769982, 0), V(6.558293, -34.769231, 0)], [4, 1, 1, 1, 1, 1, 1, 1, 1, 1, 1, 1, 1, 1, 4], [0, 0.126290104, 0.186726469, 0.246146432, 0.305575643, 0.365429386, 0.426326309, 0.488839906, 0.551724972, 0.613918596, 0.675483766, 0.737333897, 0.800229044, 0.864502298, 1], False, 3, [1, 1, 1, 1, 1, 1, 1, 1, 1, 1, 1, 1, 1, 1, 1, 1, 1], False), False)
sketch4.addGeometry(Part.BSplineCurve([V(6.539663, -32.230769, 0), V(6.479765, -32.229981, 0), V(6.390637, -32.236408, 0), V(6.273705, -32.253703, 0), V(6.188237, -32.272638, 0), V(6.104595, -32.296622, 0), V(6.02223, -32.32527, 0), V(5.942335, -32.360718, 0), V(5.863805, -32.399896, 0), V(5.788566, -32.444148, 0), V(5.717376, -32.492417, 0), V(5.650495, -32.544162, 0), V(5.587869, -32.599577, 0), V(5.529436, -32.658413, 0), V(5.475619, -32.721297, 0), V(5.426603, -32.788027, 0), V(5.381417, -32.857724, 0), V(5.340949, -32.930185, 0), V(5.307065, -33.005678, 0), V(5.277063, -33.08291, 0), V(5.253313, -33.162754, 0), V(5.234549, -33.244649, 0), V(5.216951, -33.357938, 0), V(5.210807, -33.444514, 0), V(5.211538, -33.503005, 0)], [4, 1, 1, 1, 1, 1, 1, 1, 1, 1, 1, 1, 1, 1, 1, 1, 1, 1, 1, 1, 1, 1, 4], [0, 0.087501875, 0.130462627, 0.172752021, 0.215403067, 0.25764983, 0.300152749, 0.34312149, 0.385925163, 0.427685727, 0.46881795, 0.5094918, 0.549883031, 0.589980023, 0.63040523, 0.670868626, 0.711383944, 0.751627258, 0.791775577, 0.832458919, 0.873319045, 0.914542956, 1], False, 3, [1, 1, 1, 1, 1, 1, 1, 1, 1, 1, 1, 1, 1, 1, 1, 1, 1, 1, 1, 1, 1, 1, 1, 1, 1], False), False)
sketch4.addGeometry(Part.BSplineCurve([V(7.629808, -32.730769, 0), V(7.597021, -32.690509, 0), V(7.54506, -32.632904, 0), V(7.469929, -32.562753, 0), V(7.411725, -32.513679, 0), V(7.350214, -32.46961, 0), V(7.286905, -32.428234, 0), V(7.220735, -32.391149, 0), V(7.129234, -32.346173, 0), V(7.009536, -32.299305, 0), V(6.805988, -32.245829, 0), V(6.64695, -32.230248, 0), V(6.539663, -32.230769, 0)], [4, 1, 1, 1, 1, 1, 1, 1, 1, 1, 4], [0, 0.125474941, 0.18712122, 0.248294346, 0.309294856, 0.369850066, 0.430973376, 0.49245599, 0.616147966, 0.740843698, 1], False, 3, [1, 1, 1, 1, 1, 1, 1, 1, 1, 1, 1, 1, 1], False), False)
sketch4.addGeometry(Part.LineSegment(V(7.629808, -32.730769, 0), V(7.865385, -32.550481, 0)), False)
sketch4.addGeometry(Part.BSplineCurve([V(6.55649, -31.923077, 0), V(6.624701, -31.922948, 0), V(6.72595, -31.92758, 0), V(6.858385, -31.945597, 0), V(6.954051, -31.963678, 0), V(7.047585, -31.986146, 0), V(7.138271, -32.015408, 0), V(7.226641, -32.048868, 0), V(7.312138, -32.087404, 0), V(7.394353, -32.130661, 0), V(7.473258, -32.17816, 0), V(7.548227, -32.229843, 0), V(7.619792, -32.285267, 0), V(7.686739, -32.345614, 0), V(7.772669, -32.43059, 0), V(7.829219, -32.501857, 0), V(7.865385, -32.550481, 0)], [4, 1, 1, 1, 1, 1, 1, 1, 1, 1, 1, 1, 1, 1, 4], [0, 0.135682946, 0.20121499, 0.265682235, 0.329266835, 0.392395428, 0.455069762, 0.51712685, 0.578790035, 0.639739863, 0.700191504, 0.759806243, 0.819628319, 0.879354791, 1], False, 3, [1, 1, 1, 1, 1, 1, 1, 1, 1, 1, 1, 1, 1, 1, 1, 1, 1], False), False)
sketch4.addGeometry(Part.BSplineCurve([V(4.942308, -33.482572, 0), V(4.942254, -33.376456, 0), V(4.955705, -33.219171, 0), V(5.004431, -33.017364, 0), V(5.055291, -32.874905, 0), V(5.119852, -32.738507, 0), V(5.199586, -32.609215, 0), V(5.293587, -32.4862, 0), V(5.401113, -32.37133, 0), V(5.519028, -32.266297, 0), V(5.645301, -32.173891, 0), V(5.779686, -32.096993, 0), V(5.920701, -32.032698, 0), V(6.069402, -31.983337, 0), V(6.280751, -31.93625, 0), V(6.44523, -31.923293, 0), V(6.55649, -31.923077, 0)], [4, 1, 1, 1, 1, 1, 1, 1, 1, 1, 1, 1, 1, 1, 4], [0, 0.127013532, 0.18795481, 0.248013913, 0.307747682, 0.368234515, 0.429469844, 0.492743437, 0.556257769, 0.618216786, 0.679655476, 0.741245546, 0.803415265, 0.866815462, 1], False, 3, [1, 1, 1, 1, 1, 1, 1, 1, 1, 1, 1, 1, 1, 1, 1, 1, 1], False), False)
sketch4.addGeometry(Part.BSplineCurve([V(5.322716, -34.552284, 0), V(5.260544, -34.479651, 0), V(5.176993, -34.363261, 0), V(5.088618, -34.194957, 0), V(5.035103, -34.063486, 0), V(4.993364, -33.926311, 0), V(4.953957, -33.733064, 0), V(4.942009, -33.58358, 0), V(4.942308, -33.482572, 0)], [4, 1, 1, 1, 1, 1, 4], [0, 0.247156016, 0.368779749, 0.490733862, 0.613613772, 0.738957576, 1], False, 3, [1, 1, 1, 1, 1, 1, 1, 1, 1], False), False)
sketch4.addGeometry(Part.LineSegment(V(2.865385, -32, 0), V(2.865385, -35, 0)), False)
sketch4.addGeometry(Part.LineSegment(V(2.865385, -35, 0), V(4.557692, -35, 0)), False)
sketch4.addGeometry(Part.LineSegment(V(4.557692, -35, 0), V(4.557692, -34.692308, 0)), False)
sketch4.addGeometry(Part.LineSegment(V(4.557692, -34.692308, 0), V(3.134615, -34.692308, 0)), False)
sketch4.addGeometry(Part.LineSegment(V(3.134615, -34.692308, 0), V(3.134615, -33.538462, 0)), False)
sketch4.addGeometry(Part.LineSegment(V(3.134615, -33.538462, 0), V(4.557692, -33.538462, 0)), False)
sketch4.addGeometry(Part.LineSegment(V(4.557692, -33.538462, 0), V(4.557692, -33.230769, 0)), False)
sketch4.addGeometry(Part.LineSegment(V(4.557692, -33.230769, 0), V(3.134615, -33.230769, 0)), False)
sketch4.addGeometry(Part.LineSegment(V(3.134615, -33.230769, 0), V(3.134615, -32.307692, 0)), False)
sketch4.addGeometry(Part.LineSegment(V(3.134615, -32.307692, 0), V(4.557692, -32.307692, 0)), False)
sketch4.addGeometry(Part.LineSegment(V(4.557692, -32.307692, 0), V(4.557692, -32, 0)), False)
sketch4.addGeometry(Part.LineSegment(V(4.557692, -32, 0), V(2.865385, -32, 0)), False)
sketch4.addGeometry(Part.LineSegment(V(-0.995192, -31.923077, 0), V(-2.09832, -35, 0)), False)
sketch4.addGeometry(Part.LineSegment(V(-2.09832, -35, 0), V(-2.25, -35.423077, 0)), False)
sketch4.addGeometry(Part.LineSegment(V(-2.25, -35.423077, 0), V(-1.966346, -35.423077, 0)), False)
sketch4.addGeometry(Part.LineSegment(V(-1.966346, -35.423077, 0), V(-1.814666, -35, 0)), False)
sketch4.addGeometry(Part.LineSegment(V(-1.814666, -35, 0), V(-0.711538, -31.923077, 0)), False)
sketch4.addGeometry(Part.LineSegment(V(-0.711538, -31.923077, 0), V(-0.995192, -31.923077, 0)), False)
sketch4.addConstraint(Sketcher.Constraint("Block", 7))
sketch4.addConstraint(Sketcher.Constraint("Block", 8))
sketch4.addConstraint(Sketcher.Constraint("Block", 9))
sketch4.addConstraint(Sketcher.Constraint("Block", 14))
sketch4.addConstraint(Sketcher.Constraint("Block", 15))
sketch4.addConstraint(Sketcher.Constraint("Block", 29))
sketch4.addConstraint(Sketcher.Constraint("Block", 30))
sketch4.addConstraint(Sketcher.Constraint("Block", 31))
sketch4.addConstraint(Sketcher.Constraint("Block", 33))
sketch4.addConstraint(Sketcher.Constraint("Block", 37))
sketch4.addConstraint(Sketcher.Constraint("Block", 38))
sketch4.addConstraint(Sketcher.Constraint("Block", 39))
sketch4.addConstraint(Sketcher.Constraint("Block", 40))
sketch4.addConstraint(Sketcher.Constraint("Block", 42))
sketch4.addConstraint(Sketcher.Constraint("Block", 44))
sketch4.addConstraint(Sketcher.Constraint("Block", 45))
sketch4.addConstraint(Sketcher.Constraint("Block", 46))
sketch4.addConstraint(Sketcher.Constraint("Block", 47))
sketch4.addConstraint(Sketcher.Constraint("Block", 49))
sketch4.addConstraint(Sketcher.Constraint("Block", 50))
sketch4.addConstraint(Sketcher.Constraint("Block", 51))
sketch4.addConstraint(Sketcher.Constraint("Coincident", 0, 2, 1, 1))
sketch4.addConstraint(Sketcher.Constraint("Coincident", 1, 2, 2, 1))
sketch4.addConstraint(Sketcher.Constraint("Coincident", 2, 2, 3, 1))
sketch4.addConstraint(Sketcher.Constraint("Coincident", 3, 2, 4, 1))
sketch4.addConstraint(Sketcher.Constraint("Coincident", 4, 2, 5, 1))
sketch4.addConstraint(Sketcher.Constraint("Coincident", 5, 2, 6, 1))
sketch4.addConstraint(Sketcher.Constraint("Coincident", 6, 2, 7, 2))
sketch4.addConstraint(Sketcher.Constraint("Coincident", 9, 1, 10, 1))
sketch4.addConstraint(Sketcher.Constraint("Coincident", 10, 2, 0, 1))
sketch4.addConstraint(Sketcher.Constraint("Coincident", 11, 2, 12, 1))
sketch4.addConstraint(Sketcher.Constraint("Coincident", 12, 2, 13, 1))
sketch4.addConstraint(Sketcher.Constraint("Coincident", 13, 2, 14, 2))
sketch4.addConstraint(Sketcher.Constraint("Coincident", 15, 1, 11, 1))
sketch4.addConstraint(Sketcher.Constraint("Coincident", 16, 2, 17, 1))
sketch4.addConstraint(Sketcher.Constraint("Coincident", 17, 2, 18, 1))
sketch4.addConstraint(Sketcher.Constraint("Coincident", 18, 2, 19, 1))
sketch4.addConstraint(Sketcher.Constraint("Coincident", 19, 2, 20, 1))
sketch4.addConstraint(Sketcher.Constraint("Coincident", 20, 2, 21, 1))
sketch4.addConstraint(Sketcher.Constraint("Coincident", 21, 2, 22, 1))
sketch4.addConstraint(Sketcher.Constraint("Coincident", 22, 2, 23, 1))
sketch4.addConstraint(Sketcher.Constraint("Coincident", 23, 2, 16, 1))
sketch4.addConstraint(Sketcher.Constraint("Coincident", 24, 2, 25, 1))
sketch4.addConstraint(Sketcher.Constraint("Coincident", 25, 2, 26, 1))
sketch4.addConstraint(Sketcher.Constraint("Coincident", 26, 2, 24, 1))
sketch4.addConstraint(Sketcher.Constraint("Coincident", 27, 2, 28, 1))
sketch4.addConstraint(Sketcher.Constraint("Coincident", 28, 2, 29, 2))
sketch4.addConstraint(Sketcher.Constraint("Coincident", 31, 1, 32, 1))
sketch4.addConstraint(Sketcher.Constraint("Coincident", 32, 2, 27, 1))
sketch4.addConstraint(Sketcher.Constraint("Coincident", 33, 1, 34, 1))
sketch4.addConstraint(Sketcher.Constraint("Coincident", 34, 2, 35, 1))
sketch4.addConstraint(Sketcher.Constraint("Coincident", 35, 2, 36, 1))
sketch4.addConstraint(Sketcher.Constraint("Coincident", 36, 2, 37, 2))
sketch4.addConstraint(Sketcher.Constraint("Coincident", 40, 1, 41, 1))
sketch4.addConstraint(Sketcher.Constraint("Coincident", 41, 2, 42, 2))
sketch4.addConstraint(Sketcher.Constraint("Coincident", 42, 1, 43, 1))
sketch4.addConstraint(Sketcher.Constraint("Coincident", 43, 2, 44, 2))
sketch4.addConstraint(Sketcher.Constraint("Coincident", 47, 1, 48, 1))
sketch4.addConstraint(Sketcher.Constraint("Coincident", 48, 2, 49, 2))
sketch4.addConstraint(Sketcher.Constraint("Coincident", 52, 2, 53, 1))
sketch4.addConstraint(Sketcher.Constraint("Coincident", 53, 2, 54, 1))
sketch4.addConstraint(Sketcher.Constraint("Coincident", 54, 2, 55, 1))
sketch4.addConstraint(Sketcher.Constraint("Coincident", 55, 2, 56, 1))
sketch4.addConstraint(Sketcher.Constraint("Coincident", 56, 2, 57, 1))
sketch4.addConstraint(Sketcher.Constraint("Coincident", 57, 2, 58, 1))
sketch4.addConstraint(Sketcher.Constraint("Coincident", 58, 2, 59, 1))
sketch4.addConstraint(Sketcher.Constraint("Coincident", 59, 2, 60, 1))
sketch4.addConstraint(Sketcher.Constraint("Coincident", 60, 2, 61, 1))
sketch4.addConstraint(Sketcher.Constraint("Coincident", 61, 2, 62, 1))
sketch4.addConstraint(Sketcher.Constraint("Coincident", 62, 2, 63, 1))
sketch4.addConstraint(Sketcher.Constraint("Coincident", 63, 2, 52, 1))
sketch4.addConstraint(Sketcher.Constraint("Coincident", 64, 2, 65, 1))
sketch4.addConstraint(Sketcher.Constraint("Coincident", 65, 2, 66, 1))
sketch4.addConstraint(Sketcher.Constraint("Coincident", 66, 2, 67, 1))
sketch4.addConstraint(Sketcher.Constraint("Coincident", 67, 2, 68, 1))
sketch4.addConstraint(Sketcher.Constraint("Coincident", 68, 2, 69, 1))
sketch4.addConstraint(Sketcher.Constraint("Coincident", 69, 2, 64, 1))
sketch4.addConstraint(Sketcher.Constraint("Vertical", 0))
sketch4.addConstraint(Sketcher.Constraint("Horizontal", 1))
sketch4.addConstraint(Sketcher.Constraint("Vertical", 2))
sketch4.addConstraint(Sketcher.Constraint("Horizontal", 3))
sketch4.addConstraint(Sketcher.Constraint("Horizontal", 5))
sketch4.addConstraint(Sketcher.Constraint("Horizontal", 10))
sketch4.addConstraint(Sketcher.Constraint("Vertical", 12))
sketch4.addConstraint(Sketcher.Constraint("Horizontal", 13))
sketch4.addConstraint(Sketcher.Constraint("Horizontal", 17))
sketch4.addConstraint(Sketcher.Constraint("Horizontal", 19))
sketch4.addConstraint(Sketcher.Constraint("Horizontal", 21))
sketch4.addConstraint(Sketcher.Constraint("Horizontal", 23))
sketch4.addConstraint(Sketcher.Constraint("Horizontal", 24))
sketch4.addConstraint(Sketcher.Constraint("Vertical", 27))
sketch4.addConstraint(Sketcher.Constraint("Horizontal", 28))
sketch4.addConstraint(Sketcher.Constraint("Horizontal", 32))
sketch4.addConstraint(Sketcher.Constraint("Horizontal", 34))
sketch4.addConstraint(Sketcher.Constraint("Vertical", 35))
sketch4.addConstraint(Sketcher.Constraint("Horizontal", 36))
sketch4.addConstraint(Sketcher.Constraint("Vertical", 52))
sketch4.addConstraint(Sketcher.Constraint("Horizontal", 53))
sketch4.addConstraint(Sketcher.Constraint("Vertical", 54))
sketch4.addConstraint(Sketcher.Constraint("Horizontal", 55))
sketch4.addConstraint(Sketcher.Constraint("Vertical", 56))
sketch4.addConstraint(Sketcher.Constraint("Horizontal", 57))
sketch4.addConstraint(Sketcher.Constraint("Vertical", 58))
sketch4.addConstraint(Sketcher.Constraint("Horizontal", 59))
sketch4.addConstraint(Sketcher.Constraint("Vertical", 60))
sketch4.addConstraint(Sketcher.Constraint("Horizontal", 61))
sketch4.addConstraint(Sketcher.Constraint("Vertical", 62))
sketch4.addConstraint(Sketcher.Constraint("Horizontal", 63))
sketch4.addConstraint(Sketcher.Constraint("Horizontal", 66))
sketch4.addConstraint(Sketcher.Constraint("Horizontal", 69))
sketch4.addConstraint(Sketcher.Constraint("DistanceY", 0, 2, 0, 1, Q("3 mm")))
sketch4.addConstraint(Sketcher.Constraint("DistanceY", 12, 1, 12, 2, Q("1 mm")))
sketch4.addConstraint(Sketcher.Constraint("DistanceY", 52, 2, 52, 1, Q("3 mm")))
sketch4.addConstraint(Sketcher.Constraint("DistanceY", 4, 2, -1, 1, Q("35 mm")))
sketch4.addConstraint(Sketcher.Constraint("DistanceY", 16, 2, -1, 1, Q("35 mm")))
sketch4.addConstraint(Sketcher.Constraint("DistanceY", 20, 2, -1, 1, Q("35 mm")))
sketch4.addConstraint(Sketcher.Constraint("DistanceY", 22, 2, -1, 1, Q("32 mm")))
sketch4.addConstraint(Sketcher.Constraint("DistanceY", 52, 2, -1, 1, Q("35 mm")))
sketch4.addConstraint(Sketcher.Constraint("DistanceY", 64, 2, -1, 1, Q("35 mm")))
sketch4.addConstraint(Sketcher.Constraint("DistanceY", 67, 2, -1, 1, Q("35 mm")))
sketch4.addConstraint(Sketcher.Constraint("DistanceX", 68, 2, 32, 2, Q("0.5 mm")))
sketch4.addConstraint(Sketcher.Constraint("DistanceX", 65, 2, -1, 1, Q("2.25 mm")))
sketch4.addConstraint(Sketcher.Constraint("DistanceX", 16, 2, 18, 2, Q("0.75 mm")))
sketch4.addConstraint(Sketcher.Constraint("DistanceX", 13, 1, 13, 2, Q("0.5625 mm")))
sketch4.addConstraint(Sketcher.Constraint("DistanceX", 1, 1, 1, 2, Q("0.269231 mm")))
sketch4.addConstraint(Sketcher.Constraint("DistanceX", 3, 1, 3, 2, Q("0.21875 mm")))
sketch4.addConstraint(Sketcher.Constraint("DistanceX", 10, 2, 10, 1, Q("0.600361 mm")))
sketch4.addConstraint(Sketcher.Constraint("DistanceX", 17, 1, 17, 2, Q("0.29387 mm")))
sketch4.addConstraint(Sketcher.Constraint("DistanceX", 21, 1, 21, 2, Q("0.292668 mm")))
sketch4.addConstraint(Sketcher.Constraint("DistanceX", 23, 2, 23, 1, Q("0.038462 mm")))
sketch4.addConstraint(Sketcher.Constraint("DistanceX", 32, 2, 32, 1, Q("0.605769 mm")))
sketch4.addConstraint(Sketcher.Constraint("DistanceX", 34, 2, 34, 1, Q("0.344351 mm")))
sketch4.addConstraint(Sketcher.Constraint("DistanceX", 5, 2, 20, 2, Q("2.938101 mm")))
sketch4.addConstraint(Sketcher.Constraint("DistanceX", 13, 2, 22, 2, Q("2.9375 mm")))
sketch4.addConstraint(Sketcher.Constraint("DistanceX", 23, 2, 19, 2, Q("0.686899 mm")))
sketch4.addConstraint(Sketcher.Constraint("Distance", 18, Q("1.064242 mm")))
sketch4.addConstraint(Sketcher.Constraint("Distance", 25, Q("1.26828 mm")))
sketch4.addConstraint(Sketcher.Constraint("Distance", 26, Q("1.262169 mm")))
sketch4.addConstraint(Sketcher.Constraint("Distance", 64, Q("3.268692 mm")))
sketch4.addConstraint(Sketcher.Constraint("Distance", 68, Q("3.268692 mm")))
sketch4.addConstraint(Sketcher.Constraint("DistanceX", 5, 1, 5, 2, Q("0.332933 mm")))
sketch4.addConstraint(Sketcher.Constraint("DistanceX", 19, 1, 19, 2, Q("1.359976 mm")))
sketch4.addConstraint(Sketcher.Constraint("DistanceX", 24, 2, 24, 1, Q("1.072115 mm")))
sketch4.addConstraint(Sketcher.Constraint("DistanceX", 53, 1, 53, 2, Q("1.692308 mm")))
sketch4.addConstraint(Sketcher.Constraint("DistanceX", 55, 2, 55, 1, Q("1.423077 mm")))
sketch4.addConstraint(Sketcher.Constraint("DistanceX", 57, 1, 57, 2, Q("1.423077 mm")))
sketch4.addConstraint(Sketcher.Constraint("DistanceX", 59, 2, 59, 1, Q("1.423077 mm")))
sketch4.addConstraint(Sketcher.Constraint("DistanceX", 61, 1, 61, 2, Q("1.423077 mm")))
sketch4.addConstraint(Sketcher.Constraint("DistanceX", 66, 1, 66, 2, Q("0.283654 mm")))
sketch4.addConstraint(Sketcher.Constraint("DistanceX", 69, 2, 69, 1, Q("0.283654 mm")))
sketch4.addConstraint(Sketcher.Constraint("DistanceY", 2, 1, 2, 2, Q("1.384615 mm")))
sketch4.addConstraint(Sketcher.Constraint("DistanceY", 54, 1, 54, 2, Q("0.307692 mm")))
sketch4.addConstraint(Sketcher.Constraint("DistanceY", 56, 1, 56, 2, Q("1.153846 mm")))
sketch4.addConstraint(Sketcher.Constraint("DistanceY", 58, 1, 58, 2, Q("0.307692 mm")))
sketch4.addConstraint(Sketcher.Constraint("DistanceY", 60, 1, 60, 2, Q("0.923077 mm")))
sketch4.addConstraint(Sketcher.Constraint("DistanceX", 5, 2, -1, 1, Q("5.788462 mm")))
sketch4.addConstraint(Sketcher.Constraint("DistanceY", 24, 2, -1, 1, Q("33.730769 mm")))
sketch4.addConstraint(Sketcher.Constraint("DistanceX", 64, 2, -1, 1, Q("2.09832 mm")))
sketch4.addConstraint(Sketcher.Constraint("DistanceX", 5, 2, 24, 2, Q("1.280649 mm")))
sketch4.addConstraint(Sketcher.Constraint("DistanceX", 53, 2, 41, 2, Q("2.530172 mm")))
sketch4.addConstraint(Sketcher.Constraint("Distance", 65, Q("0.449445 mm")))
pocket2 = body.newObject("PartDesign::Pocket", "Pocket001")
pocket2.Profile = sketch4
pocket2.Length = 0.2

sketch5 = body.newObject("Sketcher::SketchObject", "Sketch004")
sketch5.AttachmentSupport = (doc.getObject("XY_Plane"), [""])
sketch5.MapMode = "FlatFace"
sketch5.AttachmentOffset = App.Placement(V(0, 0, 3), App.Rotation())
sketch5.addGeometry(Part.Circle(V(0, 10, 0), V(0, 0, 1), 3.4), False)
sketch5.addConstraint(Sketcher.Constraint("PointOnObject", 0, 3, -2))
sketch5.addConstraint(Sketcher.Constraint("DistanceY", -1, 1, 0, 3, Q("10 mm")))
sketch5.addConstraint(Sketcher.Constraint("Diameter", 0, Q("6.7564 mm")))
doc.recompute()
hole2 = body.newObject("PartDesign::Hole", "Hole001")
hole2.Profile = sketch5
hole2.ThreadType = "None"
hole2.Diameter = 6.7564
hole2.DepthType = "ThroughAll"

doc.recompute()
